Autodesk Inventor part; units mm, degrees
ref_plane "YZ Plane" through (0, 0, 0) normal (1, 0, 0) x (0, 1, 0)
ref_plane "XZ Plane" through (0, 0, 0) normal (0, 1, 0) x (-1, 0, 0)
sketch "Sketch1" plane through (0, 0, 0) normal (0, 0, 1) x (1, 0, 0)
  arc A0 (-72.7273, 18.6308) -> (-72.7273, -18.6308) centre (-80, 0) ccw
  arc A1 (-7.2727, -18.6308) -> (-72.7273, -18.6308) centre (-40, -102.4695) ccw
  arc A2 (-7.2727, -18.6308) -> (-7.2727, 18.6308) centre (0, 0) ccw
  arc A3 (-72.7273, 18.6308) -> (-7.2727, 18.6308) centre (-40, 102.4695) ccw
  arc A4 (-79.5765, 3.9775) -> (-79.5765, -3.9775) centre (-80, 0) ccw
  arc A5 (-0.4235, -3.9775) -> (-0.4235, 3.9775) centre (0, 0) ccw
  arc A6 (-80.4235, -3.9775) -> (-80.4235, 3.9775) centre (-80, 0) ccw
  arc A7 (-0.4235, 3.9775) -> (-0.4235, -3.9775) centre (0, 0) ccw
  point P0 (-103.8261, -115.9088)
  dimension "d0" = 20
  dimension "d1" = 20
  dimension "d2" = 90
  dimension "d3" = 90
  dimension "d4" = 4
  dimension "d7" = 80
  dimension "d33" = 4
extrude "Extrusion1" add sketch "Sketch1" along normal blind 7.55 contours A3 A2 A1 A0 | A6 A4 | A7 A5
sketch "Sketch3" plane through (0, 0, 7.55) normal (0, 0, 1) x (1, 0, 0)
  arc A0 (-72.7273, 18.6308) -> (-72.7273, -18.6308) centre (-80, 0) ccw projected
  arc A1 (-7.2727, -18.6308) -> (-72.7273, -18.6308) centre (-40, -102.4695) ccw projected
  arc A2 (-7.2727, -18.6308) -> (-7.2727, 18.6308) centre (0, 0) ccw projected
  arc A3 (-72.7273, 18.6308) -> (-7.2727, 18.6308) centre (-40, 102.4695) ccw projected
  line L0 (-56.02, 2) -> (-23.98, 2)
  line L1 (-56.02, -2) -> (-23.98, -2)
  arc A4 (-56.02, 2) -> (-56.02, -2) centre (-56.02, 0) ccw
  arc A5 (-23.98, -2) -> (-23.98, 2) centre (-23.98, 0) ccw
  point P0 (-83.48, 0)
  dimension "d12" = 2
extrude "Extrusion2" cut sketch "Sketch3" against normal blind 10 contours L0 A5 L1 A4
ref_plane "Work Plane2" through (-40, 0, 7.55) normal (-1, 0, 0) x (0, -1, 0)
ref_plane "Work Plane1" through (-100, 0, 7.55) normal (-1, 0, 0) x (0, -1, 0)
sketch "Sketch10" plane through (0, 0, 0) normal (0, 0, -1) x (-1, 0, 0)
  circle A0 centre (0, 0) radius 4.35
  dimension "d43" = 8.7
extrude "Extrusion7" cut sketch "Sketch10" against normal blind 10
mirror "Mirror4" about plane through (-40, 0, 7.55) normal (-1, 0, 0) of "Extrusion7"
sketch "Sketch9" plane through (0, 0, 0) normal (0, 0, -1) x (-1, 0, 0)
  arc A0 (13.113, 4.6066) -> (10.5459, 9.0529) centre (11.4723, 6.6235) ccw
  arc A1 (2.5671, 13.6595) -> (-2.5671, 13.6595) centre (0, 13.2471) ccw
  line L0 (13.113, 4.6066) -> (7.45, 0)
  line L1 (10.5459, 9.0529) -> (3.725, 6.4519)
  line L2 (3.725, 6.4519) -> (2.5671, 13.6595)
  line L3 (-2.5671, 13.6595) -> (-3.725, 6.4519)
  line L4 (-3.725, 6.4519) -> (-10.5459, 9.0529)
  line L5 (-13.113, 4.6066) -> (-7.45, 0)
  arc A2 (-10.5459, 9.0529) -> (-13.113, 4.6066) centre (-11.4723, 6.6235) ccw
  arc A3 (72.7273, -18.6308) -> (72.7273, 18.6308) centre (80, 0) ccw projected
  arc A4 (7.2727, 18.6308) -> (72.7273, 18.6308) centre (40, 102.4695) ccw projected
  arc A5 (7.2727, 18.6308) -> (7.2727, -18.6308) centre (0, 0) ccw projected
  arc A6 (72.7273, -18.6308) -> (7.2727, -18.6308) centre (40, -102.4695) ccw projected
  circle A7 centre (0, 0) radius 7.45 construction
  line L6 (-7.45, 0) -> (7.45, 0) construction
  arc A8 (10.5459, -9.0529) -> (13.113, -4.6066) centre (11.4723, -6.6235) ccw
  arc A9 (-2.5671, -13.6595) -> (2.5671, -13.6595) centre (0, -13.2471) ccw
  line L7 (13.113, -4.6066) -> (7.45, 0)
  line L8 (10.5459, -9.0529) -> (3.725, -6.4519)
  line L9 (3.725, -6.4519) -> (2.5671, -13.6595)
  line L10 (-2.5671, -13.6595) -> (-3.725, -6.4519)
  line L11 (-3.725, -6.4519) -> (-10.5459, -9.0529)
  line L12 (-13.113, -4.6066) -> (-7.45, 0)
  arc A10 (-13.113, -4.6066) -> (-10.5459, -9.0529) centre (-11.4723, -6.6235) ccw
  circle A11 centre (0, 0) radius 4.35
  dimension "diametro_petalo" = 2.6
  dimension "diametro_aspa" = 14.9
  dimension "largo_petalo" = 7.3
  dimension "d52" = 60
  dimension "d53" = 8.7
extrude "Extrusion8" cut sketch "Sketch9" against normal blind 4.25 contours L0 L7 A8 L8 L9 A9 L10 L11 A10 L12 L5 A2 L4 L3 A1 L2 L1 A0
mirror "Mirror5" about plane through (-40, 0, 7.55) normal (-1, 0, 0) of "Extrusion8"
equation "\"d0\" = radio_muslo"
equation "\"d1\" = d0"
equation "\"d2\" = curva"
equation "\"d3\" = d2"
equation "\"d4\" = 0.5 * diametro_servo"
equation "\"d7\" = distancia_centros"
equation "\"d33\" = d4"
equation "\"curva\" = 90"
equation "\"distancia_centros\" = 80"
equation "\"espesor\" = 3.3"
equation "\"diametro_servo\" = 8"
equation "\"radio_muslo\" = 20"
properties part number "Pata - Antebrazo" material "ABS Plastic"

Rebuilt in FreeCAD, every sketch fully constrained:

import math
import FreeCAD as App
import Part
import Sketcher

doc = App.newDocument("Part")
body = doc.addObject("PartDesign::Body", "Body")

# Sketch on XY plane
sketch1 = doc.addObject("Sketcher::SketchObject", "Sketch")
body.addObject(sketch1)
sketch1.AttachmentSupport = (doc.XY_Plane, [""])
sketch1.MapMode = "FlatFace"
sketch1.addGeometry(Part.ArcOfCircle(Part.Circle(App.Vector(-40, 102, 0), App.Vector(0, 0, 1), 90), math.radians(-111), math.radians(-69)), False)
sketch1.addGeometry(Part.ArcOfCircle(Part.Circle(App.Vector(-80, 0, 0), App.Vector(0, 0, 1), 20), math.radians(69), math.radians(291)), False)
sketch1.addGeometry(Part.ArcOfCircle(Part.Circle(App.Vector(-40, -102, 0), App.Vector(0, 0, 1), 90), math.radians(69), math.radians(111)), False)
sketch1.addGeometry(Part.ArcOfCircle(Part.Circle(App.Vector(0, 0, 0), App.Vector(0, 0, 1), 20), math.radians(-111), math.radians(111)), False)
sketch1.addConstraint(Sketcher.Constraint("Tangent", 0, 1, 1, 1))
sketch1.addConstraint(Sketcher.Constraint("Tangent", 1, 2, 2, 2))
sketch1.addConstraint(Sketcher.Constraint("Tangent", 2, 1, 3, 1))
sketch1.addConstraint(Sketcher.Constraint("Tangent", 3, 2, 0, 2))
sketch1.addConstraint(Sketcher.Constraint("Coincident", 3, 3, -1, 1))
sketch1.addConstraint(Sketcher.Constraint("Equal", 0, 2))
sketch1.addConstraint(Sketcher.Constraint("Equal", 1, 3))
sketch1.addConstraint(Sketcher.Constraint("PointOnObject", 1, 3, -1))
sketch1.addConstraint(Sketcher.Constraint("Radius", 0, 90.0))
sketch1.addConstraint(Sketcher.Constraint("Radius", 1, 20.0))
sketch1.addConstraint(Sketcher.Constraint("DistanceX", 1, 3, -1, 1, 80.0))
pad1 = doc.addObject("PartDesign::Pad", "Pad")
body.addObject(pad1)
pad1.Profile = sketch1
pad1.Length = 7.55

# Sketch on XY plane
sketch2 = doc.addObject("Sketcher::SketchObject", "Sketch001")
body.addObject(sketch2)
sketch2.AttachmentSupport = (doc.XY_Plane, [""])
sketch2.MapMode = "FlatFace"
sketch2.AttachmentOffset = App.Placement(App.Vector(0, 0, 7.55), App.Rotation())
sketch2.addGeometry(Part.LineSegment(App.Vector(-24, 2, 0), App.Vector(-56, 2, 0)), False)
sketch2.addGeometry(Part.ArcOfCircle(Part.Circle(App.Vector(-56, 0, 0), App.Vector(0, 0, 1), 2), math.radians(90), math.radians(270)), False)
sketch2.addGeometry(Part.LineSegment(App.Vector(-56, -2, 0), App.Vector(-24, -2, 0)), False)
sketch2.addGeometry(Part.ArcOfCircle(Part.Circle(App.Vector(-24, 0, 0), App.Vector(0, 0, 1), 2), math.radians(-90), math.radians(90)), False)
sketch2.addConstraint(Sketcher.Constraint("Tangent", 0, 2, 1, 1))
sketch2.addConstraint(Sketcher.Constraint("Tangent", 1, 2, 2, 1))
sketch2.addConstraint(Sketcher.Constraint("Tangent", 2, 2, 3, 1))
sketch2.addConstraint(Sketcher.Constraint("Tangent", 3, 2, 0, 1))
sketch2.addConstraint(Sketcher.Constraint("Horizontal", 0))
sketch2.addConstraint(Sketcher.Constraint("Horizontal", 2))
sketch2.addConstraint(Sketcher.Constraint("PointOnObject", 1, 3, -1))
sketch2.addConstraint(Sketcher.Constraint("Radius", 1, 2.0))
sketch2.addConstraint(Sketcher.Constraint("DistanceX", 0, 2, 0, 1, 32.04))
sketch2.addConstraint(Sketcher.Constraint("DistanceX", 1, 3, -1, 1, 56.02))
pocket1 = doc.addObject("PartDesign::Pocket", "Pocket")
body.addObject(pocket1)
pocket1.Profile = sketch2
pocket1.Length = 10

# Sketch on XY plane
sketch3 = doc.addObject("Sketcher::SketchObject", "Sketch002")
body.addObject(sketch3)
sketch3.AttachmentSupport = (doc.XY_Plane, [""])
sketch3.MapMode = "FlatFace"
sketch3.addGeometry(Part.Circle(App.Vector(0, 0, 0), App.Vector(0, 0, 1), 4.3), False)
sketch3.addConstraint(Sketcher.Constraint("Coincident", 0, 3, -1, 1))
sketch3.addConstraint(Sketcher.Constraint("Diameter", 0, 8.7))
pocket2 = doc.addObject("PartDesign::Pocket", "Pocket001")
body.addObject(pocket2)
pocket2.Profile = sketch3
pocket2.Length = 10
pocket2.Reversed = True
doc.recompute()

datumplane = doc.addObject("PartDesign::Plane", "DatumPlane")
body.addObject(datumplane)
datumplane.AttachmentSupport = (doc.YZ_Plane, [""])
datumplane.MapMode = "FlatFace"
datumplane.AttachmentOffset = App.Placement(App.Vector(0, 0, -40), App.Rotation())
mirrored = doc.addObject("PartDesign::Mirrored", "Mirrored")
body.addObject(mirrored)
mirrored.Originals = [pocket2]
mirrored.MirrorPlane = (datumplane, [""])
body.Tip = mirrored

# Sketch on XY plane
sketch4 = doc.addObject("Sketcher::SketchObject", "Sketch003")
body.addObject(sketch4)
sketch4.AttachmentSupport = (doc.XY_Plane, [""])
sketch4.MapMode = "FlatFace"
sketch4.addGeometry(Part.LineSegment(App.Vector(-7.45, 0, 0), App.Vector(-13.113, 4.6066, 0)), False)
sketch4.addGeometry(Part.ArcOfCircle(Part.Circle(App.Vector(-11.4723, 6.6235, 0), App.Vector(0, 0, 1), 2.599958), math.radians(69.126714), math.radians(230.872469)), False)
sketch4.addGeometry(Part.LineSegment(App.Vector(-10.5459, 9.0529, 0), App.Vector(-3.725, 6.4519, 0)), False)
sketch4.addGeometry(Part.LineSegment(App.Vector(-3.725, 6.4519, 0), App.Vector(-2.5671, 13.6595, 0)), False)
sketch4.addGeometry(Part.ArcOfCircle(Part.Circle(App.Vector(0, 13.2471, 0), App.Vector(0, 0, 1), 2.600015), math.radians(9.126485), math.radians(170.873515)), False)
sketch4.addGeometry(Part.LineSegment(App.Vector(2.5671, 13.6595, 0), App.Vector(3.725, 6.4519, 0)), False)
sketch4.addGeometry(Part.LineSegment(App.Vector(3.725, 6.4519, 0), App.Vector(10.5459, 9.0529, 0)), False)
sketch4.addGeometry(Part.ArcOfCircle(Part.Circle(App.Vector(11.4723, 6.6235, 0), App.Vector(0, 0, 1), 2.600039), math.radians(-50.872469), math.radians(110.873286)), False)
sketch4.addGeometry(Part.LineSegment(App.Vector(13.113, 4.6066, 0), App.Vector(7.45, 0, 0)), False)
sketch4.addGeometry(Part.LineSegment(App.Vector(7.45, 0, 0), App.Vector(13.113, -4.6066, 0)), False)
sketch4.addGeometry(Part.ArcOfCircle(Part.Circle(App.Vector(11.4723, -6.6235, 0), App.Vector(0, 0, 1), 2.599958), math.radians(-110.873286), math.radians(50.872469)), False)
sketch4.addGeometry(Part.LineSegment(App.Vector(10.5459, -9.0529, 0), App.Vector(3.725, -6.4519, 0)), False)
sketch4.addGeometry(Part.LineSegment(App.Vector(3.725, -6.4519, 0), App.Vector(2.5671, -13.6595, 0)), False)
sketch4.addGeometry(Part.ArcOfCircle(Part.Circle(App.Vector(0, -13.2471, 0), App.Vector(0, 0, 1), 2.600015), math.radians(-170.873515), math.radians(-9.126485)), False)
sketch4.addGeometry(Part.LineSegment(App.Vector(-2.5671, -13.6595, 0), App.Vector(-3.725, -6.4519, 0)), False)
sketch4.addGeometry(Part.LineSegment(App.Vector(-3.725, -6.4519, 0), App.Vector(-10.5459, -9.0529, 0)), False)
sketch4.addGeometry(Part.ArcOfCircle(Part.Circle(App.Vector(-11.4723, -6.6235, 0), App.Vector(0, 0, 1), 2.600039), math.radians(129.127531), math.radians(290.873286)), False)
sketch4.addGeometry(Part.LineSegment(App.Vector(-13.113, -4.6066, 0), App.Vector(-7.45, 0, 0)), False)
sketch4.addGeometry(Part.Circle(App.Vector(0, 0, 0), App.Vector(0, 0, 1), 4.35), False)
sketch4.addConstraint(Sketcher.Constraint("Coincident", 0, 2, 1, 2))
sketch4.addConstraint(Sketcher.Constraint("Coincident", 1, 1, 2, 1))
sketch4.addConstraint(Sketcher.Constraint("Coincident", 2, 2, 3, 1))
sketch4.addConstraint(Sketcher.Constraint("Coincident", 3, 2, 4, 2))
sketch4.addConstraint(Sketcher.Constraint("Coincident", 4, 1, 5, 1))
sketch4.addConstraint(Sketcher.Constraint("Coincident", 5, 2, 6, 1))
sketch4.addConstraint(Sketcher.Constraint("Coincident", 6, 2, 7, 2))
sketch4.addConstraint(Sketcher.Constraint("Coincident", 7, 1, 8, 1))
sketch4.addConstraint(Sketcher.Constraint("Coincident", 8, 2, 9, 1))
sketch4.addConstraint(Sketcher.Constraint("Coincident", 9, 2, 10, 2))
sketch4.addConstraint(Sketcher.Constraint("Coincident", 10, 1, 11, 1))
sketch4.addConstraint(Sketcher.Constraint("Coincident", 11, 2, 12, 1))
sketch4.addConstraint(Sketcher.Constraint("Coincident", 12, 2, 13, 2))
sketch4.addConstraint(Sketcher.Constraint("Coincident", 13, 1, 14, 1))
sketch4.addConstraint(Sketcher.Constraint("Coincident", 14, 2, 15, 1))
sketch4.addConstraint(Sketcher.Constraint("Coincident", 15, 2, 16, 2))
sketch4.addConstraint(Sketcher.Constraint("Coincident", 16, 1, 17, 1))
sketch4.addConstraint(Sketcher.Constraint("Coincident", 17, 2, 0, 1))
sketch4.addConstraint(Sketcher.Constraint("Coincident", 18, 3, -1, 1))
sketch4.addConstraint(Sketcher.Constraint("PointOnObject", 4, 3, -2))
sketch4.addConstraint(Sketcher.Constraint("PointOnObject", 13, 3, -2))
sketch4.addConstraint(Sketcher.Constraint("PointOnObject", 8, 2, -1))
sketch4.addConstraint(Sketcher.Constraint("PointOnObject", 17, 2, -1))
sketch4.addConstraint(Sketcher.Constraint("Diameter", 18, 8.7))
sketch4.addConstraint(Sketcher.Constraint("Radius", 1, 2.6))
sketch4.addConstraint(Sketcher.Constraint("Radius", 4, 2.6))
sketch4.addConstraint(Sketcher.Constraint("Radius", 7, 2.6))
sketch4.addConstraint(Sketcher.Constraint("Radius", 10, 2.6))
sketch4.addConstraint(Sketcher.Constraint("Radius", 13, 2.6))
sketch4.addConstraint(Sketcher.Constraint("Radius", 16, 2.6))
sketch4.addConstraint(Sketcher.Constraint("Distance", 0, 7.3))
sketch4.addConstraint(Sketcher.Constraint("Distance", 2, 7.3))
sketch4.addConstraint(Sketcher.Constraint("Distance", 3, 7.3))
sketch4.addConstraint(Sketcher.Constraint("Distance", 5, 7.3))
sketch4.addConstraint(Sketcher.Constraint("Distance", 6, 7.3))
sketch4.addConstraint(Sketcher.Constraint("Distance", 8, 7.3))
sketch4.addConstraint(Sketcher.Constraint("Distance", 9, 7.3))
sketch4.addConstraint(Sketcher.Constraint("Distance", 11, 7.3))
sketch4.addConstraint(Sketcher.Constraint("Distance", 12, 7.3))
sketch4.addConstraint(Sketcher.Constraint("Distance", 14, 7.3))
sketch4.addConstraint(Sketcher.Constraint("Distance", 15, 7.3))
sketch4.addConstraint(Sketcher.Constraint("Distance", 17, 7.3))
sketch4.addConstraint(Sketcher.Constraint("DistanceX", -1, 1, 8, 2, 7.45))
sketch4.addConstraint(Sketcher.Constraint("DistanceX", 17, 2, -1, 1, 7.45))
sketch4.addConstraint(Sketcher.Constraint("DistanceY", 16, 3, 0, 2, 11.23))
sketch4.addConstraint(Sketcher.Constraint("DistanceX", 2, 2, 5, 2, 7.45))
sketch4.addConstraint(Sketcher.Constraint("DistanceY", 10, 3, 7, 1, 11.23))
sketch4.addConstraint(Sketcher.Constraint("DistanceY", 9, 2, 7, 3, 11.23))
sketch4.addConstraint(Sketcher.Constraint("DistanceX", 14, 2, 11, 2, 7.45))
sketch4.addConstraint(Sketcher.Constraint("DistanceY", 16, 1, 1, 3, 11.23))
sketch4.addConstraint(Sketcher.Constraint("DistanceY", -1, 1, 4, 3, 13.247))
sketch4.addConstraint(Sketcher.Constraint("DistanceY", 13, 3, -1, 1, 13.247))
sketch4.addConstraint(Sketcher.Constraint("DistanceX", 0, 2, -1, 1, 13.113))
sketch4.addConstraint(Sketcher.Constraint("DistanceX", 1, 1, -1, 1, 10.546))
sketch4.addConstraint(Sketcher.Constraint("DistanceX", 2, 2, -1, 1, 3.725))
sketch4.addConstraint(Sketcher.Constraint("DistanceY", -1, 1, 2, 2, 6.452))
sketch4.addConstraint(Sketcher.Constraint("DistanceX", -1, 1, 4, 1, 2.567))
sketch4.addConstraint(Sketcher.Constraint("DistanceX", -1, 1, 6, 2, 10.546))
sketch4.addConstraint(Sketcher.Constraint("DistanceX", -1, 1, 7, 1, 13.113))
sketch4.addConstraint(Sketcher.Constraint("DistanceX", -1, 1, 10, 1, 10.546))
sketch4.addConstraint(Sketcher.Constraint("DistanceX", -1, 1, 11, 2, 3.725))
sketch4.addConstraint(Sketcher.Constraint("DistanceX", 13, 1, -1, 1, 2.567))
pocket3 = doc.addObject("PartDesign::Pocket", "Pocket002")
body.addObject(pocket3)
pocket3.Profile = sketch4
pocket3.Length = 4.25
pocket3.Reversed = True
doc.recompute()

datumplane2 = doc.addObject("PartDesign::Plane", "DatumPlane001")
body.addObject(datumplane2)
datumplane2.AttachmentSupport = (doc.YZ_Plane, [""])
datumplane2.MapMode = "FlatFace"
datumplane2.AttachmentOffset = App.Placement(App.Vector(0, 0, -40), App.Rotation())
mirrored2 = doc.addObject("PartDesign::Mirrored", "Mirrored001")
body.addObject(mirrored2)
mirrored2.Originals = [pocket3]
mirrored2.MirrorPlane = (datumplane2, [""])
body.Tip = mirrored2

doc.recompute()
